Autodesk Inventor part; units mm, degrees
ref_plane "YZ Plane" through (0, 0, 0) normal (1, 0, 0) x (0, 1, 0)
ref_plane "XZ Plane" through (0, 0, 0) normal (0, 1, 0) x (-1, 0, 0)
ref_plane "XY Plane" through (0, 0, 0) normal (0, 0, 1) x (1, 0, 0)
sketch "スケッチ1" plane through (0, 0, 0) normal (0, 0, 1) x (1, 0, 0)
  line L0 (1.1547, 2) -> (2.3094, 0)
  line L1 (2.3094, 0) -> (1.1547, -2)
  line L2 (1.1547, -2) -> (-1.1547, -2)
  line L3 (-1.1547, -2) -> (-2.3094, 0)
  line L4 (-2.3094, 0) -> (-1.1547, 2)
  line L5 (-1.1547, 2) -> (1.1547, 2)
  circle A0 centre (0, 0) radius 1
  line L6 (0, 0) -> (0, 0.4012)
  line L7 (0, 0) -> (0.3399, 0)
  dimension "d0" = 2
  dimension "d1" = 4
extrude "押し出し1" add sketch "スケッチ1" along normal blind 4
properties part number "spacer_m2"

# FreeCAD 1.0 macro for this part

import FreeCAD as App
import Part
import Sketcher
Q = App.Units.Quantity


def add_polygon(sketch, points):
    """Adds a closed chain of lines whose ends are joined by coincident constraints."""
    first, n = sketch.GeometryCount, len(points)
    for a, b in zip(points, points[1:] + points[:1]):
        sketch.addGeometry(Part.LineSegment(App.Vector(*a, 0), App.Vector(*b, 0)), False)
    for i in range(n):
        sketch.addConstraint(Sketcher.Constraint("Coincident", first + i, 2, first + (i + 1) % n, 1))

doc = App.newDocument("Part")
body = doc.addObject("PartDesign::Body", "Body")

# Sketch on XY plane
sketch1 = doc.addObject("Sketcher::SketchObject", "Sketch")
body.addObject(sketch1)
sketch1.AttachmentSupport = (doc.XY_Plane, [""])
sketch1.MapMode = "FlatFace"
add_polygon(sketch1, [(2.3, 0), (1.2, 2), (-1.2, 2), (-2.3, 0), (-1.2, -2), (1.2, -2)])  # lines 0-5
sketch1.addGeometry(Part.Circle(App.Vector(0, 0, 0), App.Vector(0, 0, 1), 1), False)  # 6
sketch1.addConstraint([
    Sketcher.Constraint("Horizontal", 1),
    Sketcher.Constraint("Horizontal", 4),
    Sketcher.Constraint("Coincident", 6, 3, -1, 1),
    Sketcher.Constraint("Symmetric", 0, 2, 3, 2, -1, 1),
    Sketcher.Constraint("Symmetric", 2, 2, 5, 2, -1, 1),
    Sketcher.Constraint("PointOnObject", 2, 2, -1),
    Sketcher.Constraint("Parallel", 2, 5),
    Sketcher.Constraint("Vertical", 1, 2, 3, 2),
    Sketcher.Constraint("Diameter", 6, Q("2 mm")),
    Sketcher.Constraint("DistanceY", -1, 1, 0, 2, Q("2 mm")),
    Sketcher.Constraint("Angle", 0, Q("120 deg")),
    Sketcher.Constraint("DistanceX", 1, 2, 1, 1, Q("2.3094 mm")),
])
pad1 = doc.addObject("PartDesign::Pad", "Pad")
body.addObject(pad1)
pad1.Profile = sketch1
pad1.Length = 4

doc.recompute()
